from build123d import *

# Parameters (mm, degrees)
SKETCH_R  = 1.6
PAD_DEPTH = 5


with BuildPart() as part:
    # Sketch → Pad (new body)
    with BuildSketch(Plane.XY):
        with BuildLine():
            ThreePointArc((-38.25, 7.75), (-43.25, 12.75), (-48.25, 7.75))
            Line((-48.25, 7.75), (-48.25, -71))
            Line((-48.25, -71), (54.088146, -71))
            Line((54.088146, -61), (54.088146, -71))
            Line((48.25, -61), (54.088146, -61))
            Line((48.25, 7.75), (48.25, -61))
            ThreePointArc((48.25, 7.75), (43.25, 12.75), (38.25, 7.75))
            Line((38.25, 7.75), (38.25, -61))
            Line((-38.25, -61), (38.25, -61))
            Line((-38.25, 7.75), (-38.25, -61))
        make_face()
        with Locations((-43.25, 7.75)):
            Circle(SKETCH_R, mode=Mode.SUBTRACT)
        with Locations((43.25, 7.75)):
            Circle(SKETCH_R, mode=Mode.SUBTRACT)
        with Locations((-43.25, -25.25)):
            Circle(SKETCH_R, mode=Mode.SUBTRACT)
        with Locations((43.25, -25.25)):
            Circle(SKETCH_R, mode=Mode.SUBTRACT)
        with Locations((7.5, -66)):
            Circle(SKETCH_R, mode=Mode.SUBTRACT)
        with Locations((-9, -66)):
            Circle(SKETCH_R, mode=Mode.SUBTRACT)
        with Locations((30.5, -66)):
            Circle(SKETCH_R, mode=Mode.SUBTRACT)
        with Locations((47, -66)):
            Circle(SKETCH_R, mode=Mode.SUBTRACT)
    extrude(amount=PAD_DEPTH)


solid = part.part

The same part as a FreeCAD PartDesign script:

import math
import FreeCAD as App
import Part
import Sketcher

doc = App.newDocument("Part")
params = doc.addObject("Spreadsheet::Sheet", "Params")
for row, (alias, value) in enumerate([
    ("sketch1_radius", "5 mm"),
    ("sketch1_diameter", "3.2 mm"),
    ("sketch1_height", "10 mm"),
    ("sketch1_width", "76.5 mm"),
    ("sketch1_height2", "78.75 mm"),
    ("pad1_length", "5 mm"),
], start=1):
    params.set(f"A{row}", alias)
    params.set(f"B{row}", "=" + value)
    params.setAlias(f"B{row}", alias)

body = doc.addObject("PartDesign::Body", "Body")

sketch1 = body.newObject("Sketcher::SketchObject", "Sketch")
sketch1.AttachmentSupport = (doc.getObject("XY_Plane"), [""])
sketch1.MapMode = "FlatFace"
sketch1.addGeometry([
    Part.ArcOfCircle(Part.Circle(App.Vector(-43.2, 7.8, 0), App.Vector(0, 0, 1), 5), math.radians(0), math.radians(180)),
    Part.LineSegment(App.Vector(-48.2, 7.8, 0), App.Vector(-48.2, -71, 0)),
    Part.LineSegment(App.Vector(-48.2, -71, 0), App.Vector(54.1, -71, 0)),
    Part.LineSegment(App.Vector(54.1, -71, 0), App.Vector(54.1, -61, 0)),
    Part.LineSegment(App.Vector(54.1, -61, 0), App.Vector(48.2, -61, 0)),
    Part.LineSegment(App.Vector(48.2, -61, 0), App.Vector(48.2, 7.8, 0)),
    Part.ArcOfCircle(Part.Circle(App.Vector(43.2, 7.8, 0), App.Vector(0, 0, 1), 5), math.radians(0), math.radians(180)),
    Part.LineSegment(App.Vector(38.2, 7.8, 0), App.Vector(38.2, -61, 0)),
    Part.LineSegment(App.Vector(38.2, -61, 0), App.Vector(-38.2, -61, 0)),
    Part.LineSegment(App.Vector(-38.2, -61, 0), App.Vector(-38.2, 7.8, 0)),
    Part.Circle(App.Vector(-9, -66, 0), App.Vector(0, 0, 1), 1.6),
    Part.Circle(App.Vector(7.5, -66, 0), App.Vector(0, 0, 1), 1.6),
    Part.Circle(App.Vector(30.5, -66, 0), App.Vector(0, 0, 1), 1.6),
    Part.Circle(App.Vector(47, -66, 0), App.Vector(0, 0, 1), 1.6),
    Part.Circle(App.Vector(-43.2, -25.2, 0), App.Vector(0, 0, 1), 1.6),
    Part.Circle(App.Vector(-43.2, 7.8, 0), App.Vector(0, 0, 1), 1.6),
    Part.Circle(App.Vector(43.2, -25.2, 0), App.Vector(0, 0, 1), 1.6),
    Part.Circle(App.Vector(43.2, 7.8, 0), App.Vector(0, 0, 1), 1.6),
], False)
sketch1.addConstraint([
    Sketcher.Constraint("Tangent", 0, 2, 1, 1),
    Sketcher.Constraint("Coincident", 1, 2, 2, 1),
    Sketcher.Constraint("Coincident", 2, 2, 3, 1),
    Sketcher.Constraint("Coincident", 3, 2, 4, 1),
    Sketcher.Constraint("Coincident", 4, 2, 5, 1),
    Sketcher.Constraint("Tangent", 5, 2, 6, 1),
    Sketcher.Constraint("Tangent", 6, 2, 7, 1),
    Sketcher.Constraint("Coincident", 7, 2, 8, 1),
    Sketcher.Constraint("Coincident", 8, 2, 9, 1),
    Sketcher.Constraint("Tangent", 9, 2, 0, 1),
    Sketcher.Constraint("Vertical", 1),
    Sketcher.Constraint("Horizontal", 2),
    Sketcher.Constraint("Vertical", 3),
    Sketcher.Constraint("Horizontal", 4),
    Sketcher.Constraint("Vertical", 5),
    Sketcher.Constraint("Vertical", 7),
    Sketcher.Constraint("Horizontal", 8),
    Sketcher.Constraint("Vertical", 9),
    Sketcher.Constraint("Coincident", 15, 3, 0, 3),
    Sketcher.Constraint("Coincident", 17, 3, 6, 3),
    Sketcher.Constraint("Equal", 0, 6),
    Sketcher.Constraint("Equal", 10, 11),
    Sketcher.Constraint("Equal", 11, 12),
    Sketcher.Constraint("Equal", 12, 13),
    Sketcher.Constraint("Equal", 13, 14),
    Sketcher.Constraint("Equal", 14, 15),
    Sketcher.Constraint("Equal", 15, 16),
    Sketcher.Constraint("Equal", 16, 17),
    Sketcher.Constraint("Symmetric", 0, 3, 6, 3, -2),
    Sketcher.Constraint("Symmetric", 14, 3, 16, 3, -2),
    Sketcher.Constraint("Horizontal", 10, 3, 11, 3),
    Sketcher.Constraint("Horizontal", 11, 3, 12, 3),
    Sketcher.Constraint("Horizontal", 12, 3, 13, 3),
    Sketcher.Constraint("Horizontal", 4, 2, 7, 2),
    Sketcher.Constraint("Vertical", 0, 3, 14, 3),
    Sketcher.Constraint("Radius", 0, 5.0),
    Sketcher.Constraint("Diameter", 10, 3.2),
    Sketcher.Constraint("DistanceY", 3, 1, 3, 2, 10.0),
    Sketcher.Constraint("DistanceX", 8, 2, 8, 1, 76.5),
    Sketcher.Constraint("DistanceX", 10, 3, -1, 1, 9.0),
    Sketcher.Constraint("DistanceY", 10, 3, -1, 1, 66.0),
    Sketcher.Constraint("DistanceX", -1, 1, 13, 3, 47.0),
    Sketcher.Constraint("DistanceY", 1, 2, -1, 1, 71.0),
    Sketcher.Constraint("DistanceX", 11, 3, 12, 3, 23.0),
    Sketcher.Constraint("DistanceY", 14, 3, 0, 3, 33.0),
    Sketcher.Constraint("DistanceY", 1, 2, 1, 1, 78.75),
    Sketcher.Constraint("DistanceX", -1, 1, 11, 3, 7.5),
    Sketcher.Constraint("DistanceX", 2, 1, 2, 2, 102.338146),
])
sketch1.setExpression("Constraints[35]", "Params.sketch1_radius")
sketch1.setExpression("Constraints[36]", "Params.sketch1_diameter")
sketch1.setExpression("Constraints[37]", "Params.sketch1_height")
sketch1.setExpression("Constraints[38]", "Params.sketch1_width")
sketch1.setExpression("Constraints[45]", "Params.sketch1_height2")
pad1 = body.newObject("PartDesign::Pad", "Pad")
pad1.Profile = sketch1
pad1.setExpression("Length", "Params.pad1_length")

doc.recompute()
